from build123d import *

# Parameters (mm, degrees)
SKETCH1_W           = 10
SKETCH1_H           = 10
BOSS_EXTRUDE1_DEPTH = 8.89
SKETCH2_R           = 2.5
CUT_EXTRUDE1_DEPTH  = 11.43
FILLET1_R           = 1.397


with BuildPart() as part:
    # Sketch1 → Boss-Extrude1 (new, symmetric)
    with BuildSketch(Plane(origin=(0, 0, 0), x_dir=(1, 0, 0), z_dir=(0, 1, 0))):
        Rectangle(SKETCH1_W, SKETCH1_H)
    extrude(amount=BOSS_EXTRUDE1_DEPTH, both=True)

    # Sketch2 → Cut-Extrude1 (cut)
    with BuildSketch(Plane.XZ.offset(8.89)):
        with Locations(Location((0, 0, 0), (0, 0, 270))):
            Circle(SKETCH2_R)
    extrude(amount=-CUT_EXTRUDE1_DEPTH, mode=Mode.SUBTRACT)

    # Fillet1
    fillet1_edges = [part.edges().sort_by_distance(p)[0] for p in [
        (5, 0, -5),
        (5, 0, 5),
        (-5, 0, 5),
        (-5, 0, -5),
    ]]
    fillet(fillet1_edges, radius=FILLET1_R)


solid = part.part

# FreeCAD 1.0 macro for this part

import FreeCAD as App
import Part
import Sketcher


def edges_at(feature, points):
    """Names of the edges that pass closest to the given points."""
    edges = feature.Shape.Edges
    near = lambda p: min(range(len(edges)), key=lambda i: edges[i].distToShape(Part.Vertex(*p))[0])
    return sorted({f"Edge{near(p) + 1}" for p in points})

doc = App.newDocument("Part")
params = doc.addObject("Spreadsheet::Sheet", "Params")
for row, (alias, value) in enumerate([
    ("pad1_length", "0.7 in"),
    ("pocket1_length", "0.45 in"),
    ("fillet_radius", "0.055 in"),
], start=1):
    params.set(f"A{row}", alias)
    params.set(f"B{row}", "=" + value)
    params.setAlias(f"B{row}", alias)

body = doc.addObject("PartDesign::Body", "Body")

sketch1 = body.newObject("Sketcher::SketchObject", "Sketch")
sketch1.AttachmentSupport = (doc.getObject("XZ_Plane"), [""])
sketch1.MapMode = "FlatFace"
sketch1.addGeometry(Part.LineSegment(App.Vector(-5, -5, 0), App.Vector(-5, 5, 0)), False)
sketch1.addGeometry(Part.LineSegment(App.Vector(-5, 5, 0), App.Vector(5, 5, 0)), False)
sketch1.addGeometry(Part.LineSegment(App.Vector(5, 5, 0), App.Vector(5, -5, 0)), False)
sketch1.addGeometry(Part.LineSegment(App.Vector(5, -5, 0), App.Vector(-5, -5, 0)), False)
sketch1.addConstraint(Sketcher.Constraint("Coincident", 0, 2, 1, 1))
sketch1.addConstraint(Sketcher.Constraint("Coincident", 1, 2, 2, 1))
sketch1.addConstraint(Sketcher.Constraint("Coincident", 2, 2, 3, 1))
sketch1.addConstraint(Sketcher.Constraint("Coincident", 3, 2, 0, 1))
sketch1.addConstraint(Sketcher.Constraint("Vertical", 0))
sketch1.addConstraint(Sketcher.Constraint("Horizontal", 1))
sketch1.addConstraint(Sketcher.Constraint("Vertical", 2))
sketch1.addConstraint(Sketcher.Constraint("Horizontal", 3))
sketch1.addConstraint(Sketcher.Constraint("Symmetric", 0, 2, 2, 2, -1, 1))
sketch1.addConstraint(Sketcher.Constraint("Equal", 3, 0))
sketch1.addConstraint(Sketcher.Constraint("DistanceX", 1, 1, 1, 2, 10.0))
pad1 = body.newObject("PartDesign::Pad", "Pad")
pad1.Profile = sketch1
pad1.setExpression("Length", "Params.pad1_length")
pad1.Midplane = True

sketch2 = body.newObject("Sketcher::SketchObject", "Sketch001")
sketch2.AttachmentSupport = (doc.getObject("XZ_Plane"), [""])
sketch2.MapMode = "FlatFace"
sketch2.AttachmentOffset = App.Placement(App.Vector(0, 0, 0.35 * 25.4), App.Rotation())
sketch2.addGeometry(Part.Circle(App.Vector(0, 0, 0), App.Vector(0, 0, 1), 2.5), False)
sketch2.addConstraint(Sketcher.Constraint("Coincident", 0, 3, -1, 1))
sketch2.addConstraint(Sketcher.Constraint("Diameter", 0, 5.0))
pocket1 = body.newObject("PartDesign::Pocket", "Pocket")
pocket1.Profile = sketch2
pocket1.setExpression("Length", "Params.pocket1_length")
doc.recompute()

fillet = body.newObject("PartDesign::Fillet", "Fillet")
fillet.Base = (pocket1, edges_at(pocket1, [
    (5, 0, -5),
    (5, 0, 5),
    (-5, 0, 5),
    (-5, 0, -5),
]))
fillet.setExpression("Radius", "Params.fillet_radius")

doc.recompute()
